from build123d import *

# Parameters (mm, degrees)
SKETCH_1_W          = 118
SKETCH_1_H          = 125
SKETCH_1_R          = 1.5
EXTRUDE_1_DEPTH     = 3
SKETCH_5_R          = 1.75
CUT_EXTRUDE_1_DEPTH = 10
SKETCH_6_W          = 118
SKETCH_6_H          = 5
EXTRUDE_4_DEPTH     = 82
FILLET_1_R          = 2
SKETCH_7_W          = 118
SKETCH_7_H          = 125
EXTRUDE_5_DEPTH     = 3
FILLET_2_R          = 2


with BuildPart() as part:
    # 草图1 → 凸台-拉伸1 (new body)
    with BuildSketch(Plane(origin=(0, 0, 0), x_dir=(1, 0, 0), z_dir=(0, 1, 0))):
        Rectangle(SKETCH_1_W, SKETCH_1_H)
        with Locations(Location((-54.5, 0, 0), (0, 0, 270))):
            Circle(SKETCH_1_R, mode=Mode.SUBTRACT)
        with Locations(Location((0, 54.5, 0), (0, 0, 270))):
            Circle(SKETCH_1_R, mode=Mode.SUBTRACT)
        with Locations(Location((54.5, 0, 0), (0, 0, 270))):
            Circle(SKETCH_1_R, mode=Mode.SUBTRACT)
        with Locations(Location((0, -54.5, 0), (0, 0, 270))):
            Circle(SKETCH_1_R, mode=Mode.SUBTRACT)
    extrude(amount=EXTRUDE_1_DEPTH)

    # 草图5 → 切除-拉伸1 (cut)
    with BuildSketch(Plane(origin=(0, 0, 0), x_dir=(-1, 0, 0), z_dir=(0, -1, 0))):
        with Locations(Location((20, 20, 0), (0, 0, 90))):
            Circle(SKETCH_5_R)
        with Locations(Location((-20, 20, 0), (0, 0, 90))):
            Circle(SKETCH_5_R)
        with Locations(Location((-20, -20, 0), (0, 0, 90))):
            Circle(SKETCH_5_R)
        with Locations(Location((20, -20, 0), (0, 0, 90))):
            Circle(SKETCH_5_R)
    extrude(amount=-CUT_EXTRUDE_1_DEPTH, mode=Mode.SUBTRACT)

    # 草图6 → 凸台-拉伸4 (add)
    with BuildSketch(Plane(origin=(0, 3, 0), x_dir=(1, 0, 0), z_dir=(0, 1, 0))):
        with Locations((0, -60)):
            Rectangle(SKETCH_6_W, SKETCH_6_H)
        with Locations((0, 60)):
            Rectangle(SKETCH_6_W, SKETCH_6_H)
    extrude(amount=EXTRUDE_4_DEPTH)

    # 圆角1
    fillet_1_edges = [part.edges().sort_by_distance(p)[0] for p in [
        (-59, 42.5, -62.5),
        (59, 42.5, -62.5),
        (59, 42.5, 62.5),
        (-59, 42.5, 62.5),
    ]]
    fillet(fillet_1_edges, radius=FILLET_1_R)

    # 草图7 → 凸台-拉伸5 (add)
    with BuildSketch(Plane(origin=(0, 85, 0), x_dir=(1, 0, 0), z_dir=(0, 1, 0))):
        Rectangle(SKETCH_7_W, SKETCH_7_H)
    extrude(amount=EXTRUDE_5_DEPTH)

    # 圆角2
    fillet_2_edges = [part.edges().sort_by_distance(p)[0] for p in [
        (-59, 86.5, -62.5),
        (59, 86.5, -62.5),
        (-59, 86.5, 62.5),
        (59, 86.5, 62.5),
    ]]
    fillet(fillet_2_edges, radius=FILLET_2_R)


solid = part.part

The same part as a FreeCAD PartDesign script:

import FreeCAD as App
import Part
import Sketcher

V = App.Vector
Q = App.Units.Quantity


def edges_at(feature, points):
    """Names of the edges that pass closest to the given points."""
    edges = feature.Shape.Edges
    near = lambda p: min(range(len(edges)), key=lambda i: edges[i].distToShape(Part.Vertex(*p))[0])
    return sorted({f"Edge{near(p) + 1}" for p in points})


def add_polygon(sketch, points):
    """Adds a closed chain of lines whose ends are joined by coincident constraints."""
    first, n = sketch.GeometryCount, len(points)
    for a, b in zip(points, points[1:] + points[:1]):
        sketch.addGeometry(Part.LineSegment(App.Vector(*a, 0), App.Vector(*b, 0)), False)
    for i in range(n):
        sketch.addConstraint(Sketcher.Constraint("Coincident", first + i, 2, first + (i + 1) % n, 1))

doc = App.newDocument("Part")
body = doc.addObject("PartDesign::Body", "Body")

sketch1 = body.newObject("Sketcher::SketchObject", "Sketch")
sketch1.AttachmentSupport = (doc.getObject("XZ_Plane"), [""])
sketch1.MapMode = "FlatFace"
add_polygon(sketch1, [(-59, -62.5), (-59, 62.5), (59, 62.5), (59, -62.5)])
sketch1.addGeometry(Part.Circle(V(0, 54.5, 0), V(0, 0, 1), 1.5), False)
sketch1.addGeometry(Part.Circle(V(-54.5, 0, 0), V(0, 0, 1), 1.5), False)
sketch1.addGeometry(Part.Circle(V(54.5, 0, 0), V(0, 0, 1), 1.5), False)
sketch1.addGeometry(Part.Circle(V(0, -54.5, 0), V(0, 0, 1), 1.5), False)
sketch1.addConstraint(Sketcher.Constraint("Vertical", 0))
sketch1.addConstraint(Sketcher.Constraint("Horizontal", 1))
sketch1.addConstraint(Sketcher.Constraint("Vertical", 2))
sketch1.addConstraint(Sketcher.Constraint("Horizontal", 3))
sketch1.addConstraint(Sketcher.Constraint("Equal", 4, 5))
sketch1.addConstraint(Sketcher.Constraint("Equal", 5, 6))
sketch1.addConstraint(Sketcher.Constraint("Equal", 6, 7))
sketch1.addConstraint(Sketcher.Constraint("Symmetric", 5, 3, 6, 3, -1, 1))
sketch1.addConstraint(Sketcher.Constraint("Symmetric", 4, 3, 7, 3, -1, 1))
sketch1.addConstraint(Sketcher.Constraint("Symmetric", 0, 2, 2, 2, -1, 1))
sketch1.addConstraint(Sketcher.Constraint("PointOnObject", 4, 3, -2))
sketch1.addConstraint(Sketcher.Constraint("PointOnObject", 5, 3, -1))
sketch1.addConstraint(Sketcher.Constraint("Diameter", 4, Q("3 mm")))
sketch1.addConstraint(Sketcher.Constraint("DistanceX", 1, 1, 1, 2, Q("118 mm")))
sketch1.addConstraint(Sketcher.Constraint("DistanceY", 0, 1, 0, 2, Q("125 mm")))
sketch1.addConstraint(Sketcher.Constraint("DistanceX", 5, 3, 6, 3, Q("109 mm")))
sketch1.addConstraint(Sketcher.Constraint("DistanceY", 7, 3, 4, 3, Q("109 mm")))
pad1 = body.newObject("PartDesign::Pad", "Pad")
pad1.Profile = sketch1
pad1.Length = 3
pad1.Reversed = True

sketch2 = body.newObject("Sketcher::SketchObject", "Sketch001")
sketch2.AttachmentSupport = (doc.getObject("XZ_Plane"), [""])
sketch2.MapMode = "FlatFace"
sketch2.addGeometry(Part.Circle(V(-20, -20, 0), V(0, 0, 1), 1.8), False)
sketch2.addGeometry(Part.Circle(V(20, -20, 0), V(0, 0, 1), 1.8), False)
sketch2.addGeometry(Part.Circle(V(20, 20, 0), V(0, 0, 1), 1.8), False)
sketch2.addGeometry(Part.Circle(V(-20, 20, 0), V(0, 0, 1), 1.8), False)
sketch2.addConstraint(Sketcher.Constraint("Equal", 0, 1))
sketch2.addConstraint(Sketcher.Constraint("Equal", 1, 2))
sketch2.addConstraint(Sketcher.Constraint("Equal", 2, 3))
sketch2.addConstraint(Sketcher.Constraint("Symmetric", 0, 3, 2, 3, -1, 1))
sketch2.addConstraint(Sketcher.Constraint("Symmetric", 1, 3, 3, 3, -1, 1))
sketch2.addConstraint(Sketcher.Constraint("Symmetric", 0, 3, 1, 3, -2))
sketch2.addConstraint(Sketcher.Constraint("Diameter", 0, Q("3.5 mm")))
sketch2.addConstraint(Sketcher.Constraint("DistanceX", 0, 3, -1, 1, Q("20 mm")))
sketch2.addConstraint(Sketcher.Constraint("DistanceY", 0, 3, -1, 1, Q("20 mm")))
pocket1 = body.newObject("PartDesign::Pocket", "Pocket")
pocket1.Profile = sketch2
pocket1.Length = 10

sketch3 = body.newObject("Sketcher::SketchObject", "Sketch002")
sketch3.AttachmentSupport = (doc.getObject("XZ_Plane"), [""])
sketch3.MapMode = "FlatFace"
sketch3.AttachmentOffset = App.Placement(V(0, 0, -3), App.Rotation())
add_polygon(sketch3, [(-59, 58), (-59, 62), (59, 62), (59, 58)])
add_polygon(sketch3, [(-59, -62), (-59, -58), (59, -58), (59, -62)])
sketch3.addConstraint(Sketcher.Constraint("Vertical", 0))
sketch3.addConstraint(Sketcher.Constraint("Horizontal", 1))
sketch3.addConstraint(Sketcher.Constraint("Vertical", 2))
sketch3.addConstraint(Sketcher.Constraint("Horizontal", 3))
sketch3.addConstraint(Sketcher.Constraint("Vertical", 4))
sketch3.addConstraint(Sketcher.Constraint("Horizontal", 5))
sketch3.addConstraint(Sketcher.Constraint("Vertical", 6))
sketch3.addConstraint(Sketcher.Constraint("Horizontal", 7))
sketch3.addConstraint(Sketcher.Constraint("Symmetric", 2, 2, 4, 2, -1, 1))
sketch3.addConstraint(Sketcher.Constraint("Symmetric", 0, 2, 6, 2, -1, 1))
sketch3.addConstraint(Sketcher.Constraint("Vertical", 3, 2, 4, 2))
sketch3.addConstraint(Sketcher.Constraint("DistanceX", 1, 1, 1, 2, Q("118 mm")))
sketch3.addConstraint(Sketcher.Constraint("DistanceY", 0, 1, 0, 2, Q("5 mm")))
sketch3.addConstraint(Sketcher.Constraint("DistanceY", 4, 2, 3, 2, Q("115 mm")))
pad2 = body.newObject("PartDesign::Pad", "Pad001")
pad2.Profile = sketch3
pad2.Length = 82
pad2.Reversed = True
doc.recompute()

fillet = body.newObject("PartDesign::Fillet", "Fillet")
fillet.Base = (pad2, edges_at(pad2, [
    (-59, 42.5, -62.5),
    (59, 42.5, -62.5),
    (59, 42.5, 62.5),
    (-59, 42.5, 62.5),
]))
fillet.Radius = 2

sketch4 = body.newObject("Sketcher::SketchObject", "Sketch003")
sketch4.AttachmentSupport = (doc.getObject("XZ_Plane"), [""])
sketch4.MapMode = "FlatFace"
sketch4.AttachmentOffset = App.Placement(V(0, 0, -85), App.Rotation())
add_polygon(sketch4, [(-59, -62), (-59, 62), (59, 62), (59, -62)])
sketch4.addConstraint(Sketcher.Constraint("Vertical", 0))
sketch4.addConstraint(Sketcher.Constraint("Horizontal", 1))
sketch4.addConstraint(Sketcher.Constraint("Vertical", 2))
sketch4.addConstraint(Sketcher.Constraint("Horizontal", 3))
sketch4.addConstraint(Sketcher.Constraint("Symmetric", 0, 2, 2, 2, -1, 1))
sketch4.addConstraint(Sketcher.Constraint("DistanceX", 1, 1, 1, 2, Q("118 mm")))
sketch4.addConstraint(Sketcher.Constraint("DistanceY", 0, 1, 0, 2, Q("125 mm")))
pad3 = body.newObject("PartDesign::Pad", "Pad002")
pad3.Profile = sketch4
pad3.Length = 3
pad3.Reversed = True
doc.recompute()

fillet2 = body.newObject("PartDesign::Fillet", "Fillet001")
fillet2.Base = (pad3, edges_at(pad3, [
    (-59, 86.5, -62.5),
    (59, 86.5, -62.5),
    (-59, 86.5, 62.5),
    (59, 86.5, 62.5),
]))
fillet2.Radius = 2

doc.recompute()
